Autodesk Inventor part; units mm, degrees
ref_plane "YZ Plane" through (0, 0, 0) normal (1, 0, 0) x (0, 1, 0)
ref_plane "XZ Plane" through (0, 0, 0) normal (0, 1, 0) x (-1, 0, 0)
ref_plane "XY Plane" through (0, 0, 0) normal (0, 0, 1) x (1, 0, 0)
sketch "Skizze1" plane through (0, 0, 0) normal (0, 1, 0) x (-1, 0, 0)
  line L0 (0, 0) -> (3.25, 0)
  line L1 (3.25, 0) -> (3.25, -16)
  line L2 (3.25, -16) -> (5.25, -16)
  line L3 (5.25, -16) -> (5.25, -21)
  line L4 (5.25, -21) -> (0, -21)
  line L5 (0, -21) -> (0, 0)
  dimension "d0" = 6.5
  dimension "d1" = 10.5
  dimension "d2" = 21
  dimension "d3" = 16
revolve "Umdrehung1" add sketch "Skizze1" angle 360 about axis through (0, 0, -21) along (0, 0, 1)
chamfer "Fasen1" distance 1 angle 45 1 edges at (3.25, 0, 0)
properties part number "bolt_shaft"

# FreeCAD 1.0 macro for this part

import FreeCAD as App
import Part
import Sketcher
Q = App.Units.Quantity


def edges_at(feature, points):
    """Names of the edges that pass closest to the given points."""
    edges = feature.Shape.Edges
    near = lambda p: min(range(len(edges)), key=lambda i: edges[i].distToShape(Part.Vertex(*p))[0])
    return sorted({f"Edge{near(p) + 1}" for p in points})

doc = App.newDocument("Part")
body = doc.addObject("PartDesign::Body", "Body")

sketch1 = body.newObject("Sketcher::SketchObject", "Sketch")
sketch1.AttachmentSupport = (doc.getObject("XZ_Plane"), [""])
sketch1.MapMode = "FlatFace"
sketch1.addGeometry([
    Part.LineSegment(App.Vector(-3.2, 0, 0), App.Vector(0, 0, 0)),
    Part.LineSegment(App.Vector(0, 0, 0), App.Vector(0, -21, 0)),
    Part.LineSegment(App.Vector(0, -21, 0), App.Vector(-5.2, -21, 0)),
    Part.LineSegment(App.Vector(-5.2, -21, 0), App.Vector(-5.2, -16, 0)),
    Part.LineSegment(App.Vector(-5.2, -16, 0), App.Vector(-3.2, -16, 0)),
    Part.LineSegment(App.Vector(-3.2, -16, 0), App.Vector(-3.2, 0, 0)),
], False)
sketch1.addConstraint([
    Sketcher.Constraint("Coincident", 0, 2, 1, 1),
    Sketcher.Constraint("Coincident", 1, 2, 2, 1),
    Sketcher.Constraint("Coincident", 2, 2, 3, 1),
    Sketcher.Constraint("Coincident", 3, 2, 4, 1),
    Sketcher.Constraint("Coincident", 4, 2, 5, 1),
    Sketcher.Constraint("Coincident", 5, 2, 0, 1),
    Sketcher.Constraint("Horizontal", 0),
    Sketcher.Constraint("Vertical", 1),
    Sketcher.Constraint("Horizontal", 2),
    Sketcher.Constraint("Vertical", 3),
    Sketcher.Constraint("Horizontal", 4),
    Sketcher.Constraint("Vertical", 5),
    Sketcher.Constraint("Coincident", 0, 2, -1, 1),
    Sketcher.Constraint("DistanceY", 1, 2, 1, 1, Q("21 mm")),
    Sketcher.Constraint("DistanceY", 5, 1, 5, 2, Q("16 mm")),
    Sketcher.Constraint("DistanceX", 4, 1, 4, 2, Q("2 mm")),
    Sketcher.Constraint("DistanceX", 0, 1, 0, 2, Q("3.25 mm")),
])
revolution = body.newObject("PartDesign::Revolution", "Revolution")
revolution.Profile = sketch1
revolution.ReferenceAxis = (sketch1, ["V_Axis"])
revolution.Angle = 360
doc.recompute()

chamfer = body.newObject("PartDesign::Chamfer", "Chamfer")
chamfer.Base = (revolution, edges_at(revolution, [(3.25, 0, 0)]))
chamfer.Size = 1

doc.recompute()
